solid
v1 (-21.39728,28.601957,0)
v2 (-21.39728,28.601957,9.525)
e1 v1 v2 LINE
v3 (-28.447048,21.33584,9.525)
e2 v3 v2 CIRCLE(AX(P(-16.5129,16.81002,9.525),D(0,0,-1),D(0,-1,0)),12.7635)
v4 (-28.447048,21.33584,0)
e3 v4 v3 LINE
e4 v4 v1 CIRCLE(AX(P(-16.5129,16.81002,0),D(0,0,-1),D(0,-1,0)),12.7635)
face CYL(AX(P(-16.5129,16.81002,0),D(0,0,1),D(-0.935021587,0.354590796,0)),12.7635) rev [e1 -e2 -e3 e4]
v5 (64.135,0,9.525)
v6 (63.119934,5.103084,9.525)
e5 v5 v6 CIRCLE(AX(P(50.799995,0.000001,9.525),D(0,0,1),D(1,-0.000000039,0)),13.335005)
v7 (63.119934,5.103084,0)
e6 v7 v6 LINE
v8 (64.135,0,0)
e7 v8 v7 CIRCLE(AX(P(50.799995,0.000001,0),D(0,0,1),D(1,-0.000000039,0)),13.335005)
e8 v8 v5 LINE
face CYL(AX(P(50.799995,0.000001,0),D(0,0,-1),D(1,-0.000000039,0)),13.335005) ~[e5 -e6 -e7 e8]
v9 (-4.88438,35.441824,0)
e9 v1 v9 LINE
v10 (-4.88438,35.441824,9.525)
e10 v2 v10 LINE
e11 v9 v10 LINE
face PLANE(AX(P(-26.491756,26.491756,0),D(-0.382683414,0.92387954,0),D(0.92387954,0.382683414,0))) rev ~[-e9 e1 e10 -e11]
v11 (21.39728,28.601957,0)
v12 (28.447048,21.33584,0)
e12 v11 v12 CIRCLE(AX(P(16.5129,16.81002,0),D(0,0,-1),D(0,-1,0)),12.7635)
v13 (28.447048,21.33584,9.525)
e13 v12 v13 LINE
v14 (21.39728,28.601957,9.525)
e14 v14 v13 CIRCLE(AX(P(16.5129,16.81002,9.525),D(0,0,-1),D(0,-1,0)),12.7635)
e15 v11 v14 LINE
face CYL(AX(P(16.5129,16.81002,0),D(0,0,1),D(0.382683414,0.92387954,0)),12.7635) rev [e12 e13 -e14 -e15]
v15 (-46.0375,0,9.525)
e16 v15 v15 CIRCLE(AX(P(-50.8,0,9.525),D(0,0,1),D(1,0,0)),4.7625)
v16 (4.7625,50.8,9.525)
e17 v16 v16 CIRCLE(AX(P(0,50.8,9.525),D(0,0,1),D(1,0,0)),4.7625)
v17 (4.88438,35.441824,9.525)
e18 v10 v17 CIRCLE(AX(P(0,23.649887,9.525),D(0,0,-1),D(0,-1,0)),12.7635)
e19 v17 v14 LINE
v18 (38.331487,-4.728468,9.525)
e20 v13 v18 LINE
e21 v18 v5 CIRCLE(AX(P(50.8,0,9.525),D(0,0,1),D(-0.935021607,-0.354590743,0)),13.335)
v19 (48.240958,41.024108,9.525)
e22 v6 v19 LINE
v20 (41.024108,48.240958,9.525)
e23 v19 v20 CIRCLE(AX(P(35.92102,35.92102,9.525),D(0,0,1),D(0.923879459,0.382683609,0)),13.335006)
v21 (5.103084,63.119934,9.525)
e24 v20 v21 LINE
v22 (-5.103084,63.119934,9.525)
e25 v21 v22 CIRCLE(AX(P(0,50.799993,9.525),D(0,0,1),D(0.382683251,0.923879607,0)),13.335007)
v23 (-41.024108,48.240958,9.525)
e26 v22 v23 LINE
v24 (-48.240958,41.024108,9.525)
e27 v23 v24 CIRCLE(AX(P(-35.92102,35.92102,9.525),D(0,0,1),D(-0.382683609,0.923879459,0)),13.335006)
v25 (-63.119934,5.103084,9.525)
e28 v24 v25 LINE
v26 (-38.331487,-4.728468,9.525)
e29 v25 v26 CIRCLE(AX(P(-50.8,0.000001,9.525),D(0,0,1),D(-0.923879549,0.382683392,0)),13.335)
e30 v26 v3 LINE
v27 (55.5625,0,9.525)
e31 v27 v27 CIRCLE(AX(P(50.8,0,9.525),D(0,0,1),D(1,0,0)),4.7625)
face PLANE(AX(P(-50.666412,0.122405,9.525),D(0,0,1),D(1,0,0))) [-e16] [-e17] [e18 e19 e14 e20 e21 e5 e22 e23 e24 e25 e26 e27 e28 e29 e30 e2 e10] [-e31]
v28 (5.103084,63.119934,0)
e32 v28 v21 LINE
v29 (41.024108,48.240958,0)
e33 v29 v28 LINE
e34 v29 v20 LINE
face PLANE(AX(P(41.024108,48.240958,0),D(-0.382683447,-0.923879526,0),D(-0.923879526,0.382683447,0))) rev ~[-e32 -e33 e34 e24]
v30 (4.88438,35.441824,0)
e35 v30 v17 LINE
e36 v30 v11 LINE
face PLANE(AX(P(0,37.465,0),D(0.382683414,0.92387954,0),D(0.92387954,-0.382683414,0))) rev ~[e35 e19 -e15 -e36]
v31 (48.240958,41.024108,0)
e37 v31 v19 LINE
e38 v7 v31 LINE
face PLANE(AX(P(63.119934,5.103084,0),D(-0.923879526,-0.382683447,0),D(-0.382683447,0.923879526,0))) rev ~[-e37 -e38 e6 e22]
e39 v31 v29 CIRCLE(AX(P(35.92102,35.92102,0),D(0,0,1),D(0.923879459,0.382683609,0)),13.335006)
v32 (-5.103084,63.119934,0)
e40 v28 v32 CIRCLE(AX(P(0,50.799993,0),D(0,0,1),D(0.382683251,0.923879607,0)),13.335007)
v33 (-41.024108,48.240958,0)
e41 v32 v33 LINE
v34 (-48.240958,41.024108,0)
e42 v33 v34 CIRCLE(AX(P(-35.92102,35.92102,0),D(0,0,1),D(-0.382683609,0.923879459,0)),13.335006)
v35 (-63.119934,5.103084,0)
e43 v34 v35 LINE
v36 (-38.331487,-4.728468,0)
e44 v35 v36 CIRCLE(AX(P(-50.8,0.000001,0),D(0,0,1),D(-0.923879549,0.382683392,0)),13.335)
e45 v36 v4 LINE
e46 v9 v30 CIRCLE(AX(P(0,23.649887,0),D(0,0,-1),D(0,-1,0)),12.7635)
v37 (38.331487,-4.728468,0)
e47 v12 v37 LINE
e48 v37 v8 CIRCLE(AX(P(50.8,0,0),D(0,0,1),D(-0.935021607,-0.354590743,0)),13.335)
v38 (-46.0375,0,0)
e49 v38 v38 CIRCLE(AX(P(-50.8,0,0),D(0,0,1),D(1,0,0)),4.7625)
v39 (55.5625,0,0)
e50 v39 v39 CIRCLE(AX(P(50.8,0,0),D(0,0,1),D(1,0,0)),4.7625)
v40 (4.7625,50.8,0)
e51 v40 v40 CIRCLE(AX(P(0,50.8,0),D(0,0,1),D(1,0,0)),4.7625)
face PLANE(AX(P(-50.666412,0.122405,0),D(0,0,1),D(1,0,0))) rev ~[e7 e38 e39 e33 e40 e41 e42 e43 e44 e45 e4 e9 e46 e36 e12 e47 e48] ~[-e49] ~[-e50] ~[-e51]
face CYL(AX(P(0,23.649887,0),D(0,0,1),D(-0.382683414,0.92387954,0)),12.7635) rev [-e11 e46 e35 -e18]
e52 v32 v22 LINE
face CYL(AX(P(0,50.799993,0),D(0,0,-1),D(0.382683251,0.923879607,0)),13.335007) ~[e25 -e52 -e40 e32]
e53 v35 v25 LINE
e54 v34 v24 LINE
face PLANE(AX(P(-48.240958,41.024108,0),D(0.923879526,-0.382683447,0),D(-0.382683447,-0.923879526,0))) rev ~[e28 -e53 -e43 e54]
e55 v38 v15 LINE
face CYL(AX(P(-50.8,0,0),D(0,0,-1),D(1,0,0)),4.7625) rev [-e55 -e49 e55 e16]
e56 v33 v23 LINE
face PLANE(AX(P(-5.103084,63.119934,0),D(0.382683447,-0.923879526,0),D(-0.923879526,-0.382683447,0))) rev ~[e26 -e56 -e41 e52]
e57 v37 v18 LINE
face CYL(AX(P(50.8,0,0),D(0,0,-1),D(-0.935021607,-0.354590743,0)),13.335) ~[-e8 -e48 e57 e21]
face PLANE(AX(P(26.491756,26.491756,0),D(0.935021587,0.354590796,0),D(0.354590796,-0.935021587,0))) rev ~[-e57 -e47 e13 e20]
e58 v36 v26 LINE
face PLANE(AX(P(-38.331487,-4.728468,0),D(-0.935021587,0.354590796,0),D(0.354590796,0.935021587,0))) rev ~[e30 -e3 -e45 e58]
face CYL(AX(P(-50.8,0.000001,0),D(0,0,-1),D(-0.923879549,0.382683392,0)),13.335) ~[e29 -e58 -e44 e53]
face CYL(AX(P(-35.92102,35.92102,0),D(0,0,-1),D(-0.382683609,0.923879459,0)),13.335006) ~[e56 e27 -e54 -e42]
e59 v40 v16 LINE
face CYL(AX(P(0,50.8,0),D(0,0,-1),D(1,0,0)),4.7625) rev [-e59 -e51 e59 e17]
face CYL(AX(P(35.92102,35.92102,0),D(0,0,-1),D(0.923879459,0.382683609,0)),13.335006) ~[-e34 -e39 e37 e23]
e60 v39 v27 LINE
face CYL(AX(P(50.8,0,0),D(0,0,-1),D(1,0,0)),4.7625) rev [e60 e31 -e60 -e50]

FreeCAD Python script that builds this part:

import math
import FreeCAD as App
import Part
import Sketcher
Q = App.Units.Quantity


def edges_at(feature, points):
    """Names of the edges that pass closest to the given points."""
    edges = feature.Shape.Edges
    near = lambda p: min(range(len(edges)), key=lambda i: edges[i].distToShape(Part.Vertex(*p))[0])
    return sorted({f"Edge{near(p) + 1}" for p in points})

doc = App.newDocument("Part")
params = doc.addObject("Spreadsheet::Sheet", "Params")
for row, (alias, value) in enumerate([
    ("sketch1_diameter", "0.375 in"),
    ("sketch1_radius", "0.525 in"),
    ("pad1_length", "0.375 in"),
    ("fillet_radius", "0.5025 in"),
], start=1):
    params.set(f"A{row}", alias)
    params.set(f"B{row}", "=" + value)
    params.setAlias(f"B{row}", alias)

body = doc.addObject("PartDesign::Body", "Body")

# Sketch on XY plane
sketch1 = body.newObject("Sketcher::SketchObject", "Sketch")
sketch1.AttachmentSupport = (doc.getObject("XY_Plane"), [""])
sketch1.MapMode = "FlatFace"
sketch1.addGeometry([
    Part.ArcOfCircle(Part.Circle(App.Vector(-50.8, 0, 0), App.Vector(0, 0, 1), 13.3), math.radians(158), math.radians(339)),  # 0
    Part.LineSegment(App.Vector(-38.3, -4.7, 0), App.Vector(-26.5, 26.5, 0)),  # 1
    Part.LineSegment(App.Vector(-26.5, 26.5, 0), App.Vector(0, 37.5, 0)),  # 2
    Part.LineSegment(App.Vector(0, 37.5, 0), App.Vector(26.5, 26.5, 0)),  # 3
    Part.LineSegment(App.Vector(26.5, 26.5, 0), App.Vector(38.3, -4.7, 0)),  # 4
    Part.ArcOfCircle(Part.Circle(App.Vector(50.8, 0, 0), App.Vector(0, 0, 1), 13.3), math.radians(-159), math.radians(0)),  # 5
    Part.ArcOfCircle(Part.Circle(App.Vector(50.8, 0, 0), App.Vector(0, 0, 1), 13.3), math.radians(0), math.radians(22)),  # 6
    Part.LineSegment(App.Vector(63.1, 5.1, 0), App.Vector(48.2, 41, 0)),  # 7
    Part.ArcOfCircle(Part.Circle(App.Vector(35.9, 35.9, 0), App.Vector(0, 0, 1), 13.3), math.radians(23), math.radians(67)),  # 8
    Part.LineSegment(App.Vector(41, 48.2, 0), App.Vector(5.1, 63.1, 0)),  # 9
    Part.ArcOfCircle(Part.Circle(App.Vector(0, 50.8, 0), App.Vector(0, 0, 1), 13.3), math.radians(68), math.radians(112)),  # 10
    Part.LineSegment(App.Vector(-5.1, 63.1, 0), App.Vector(-41, 48.2, 0)),  # 11
    Part.ArcOfCircle(Part.Circle(App.Vector(-35.9, 35.9, 0), App.Vector(0, 0, 1), 13.3), math.radians(113), math.radians(157)),  # 12
    Part.LineSegment(App.Vector(-48.2, 41, 0), App.Vector(-63.1, 5.1, 0)),  # 13
    Part.Circle(App.Vector(-50.8, 0, 0), App.Vector(0, 0, 1), 4.8),  # 14
    Part.Circle(App.Vector(50.8, 0, 0), App.Vector(0, 0, 1), 4.8),  # 15
    Part.Circle(App.Vector(0, 50.8, 0), App.Vector(0, 0, 1), 4.8),  # 16
], False)
sketch1.addConstraint([
    Sketcher.Constraint("Tangent", 0, 2, 1, 1),
    Sketcher.Constraint("Coincident", 1, 2, 2, 1),
    Sketcher.Constraint("Coincident", 2, 2, 3, 1),
    Sketcher.Constraint("Coincident", 3, 2, 4, 1),
    Sketcher.Constraint("Tangent", 4, 2, 5, 1),
    Sketcher.Constraint("Tangent", 5, 2, 6, 1),
    Sketcher.Constraint("Tangent", 6, 2, 7, 1),
    Sketcher.Constraint("Tangent", 7, 2, 8, 1),
    Sketcher.Constraint("Tangent", 8, 2, 9, 1),
    Sketcher.Constraint("Tangent", 9, 2, 10, 1),
    Sketcher.Constraint("Tangent", 10, 2, 11, 1),
    Sketcher.Constraint("Tangent", 11, 2, 12, 1),
    Sketcher.Constraint("Tangent", 12, 2, 13, 1),
    Sketcher.Constraint("Tangent", 13, 2, 0, 1),
    Sketcher.Constraint("Coincident", 14, 3, 0, 3),
    Sketcher.Constraint("Coincident", 15, 3, 5, 3),
    Sketcher.Constraint("Coincident", 16, 3, 10, 3),
    Sketcher.Constraint("Equal", 0, 5),
    Sketcher.Constraint("Equal", 6, 8),
    Sketcher.Constraint("Equal", 8, 10),
    Sketcher.Constraint("Equal", 10, 12),
    Sketcher.Constraint("Equal", 14, 15),
    Sketcher.Constraint("Equal", 15, 16),
    Sketcher.Constraint("Symmetric", 0, 3, 5, 3, -1, 1),
    Sketcher.Constraint("Symmetric", 0, 3, 6, 3, -2),
    Sketcher.Constraint("Symmetric", 8, 3, 12, 3, -2),
    Sketcher.Constraint("Symmetric", 1, 2, 3, 2, -2),
    Sketcher.Constraint("PointOnObject", 10, 3, -2),
    Sketcher.Constraint("PointOnObject", 2, 2, -2),
    Sketcher.Constraint("PointOnObject", 5, 2, -1),
    Sketcher.Constraint("Perpendicular", 2, 7),
    Sketcher.Constraint("Parallel", 3, 9),
    Sketcher.Constraint("Equal", 7, 9),
    Sketcher.Constraint("Diameter", 14, Q("0.375 in")),
    Sketcher.Constraint("DistanceX", 0, 3, -1, 1, Q("2 in")),
    Sketcher.Constraint("Radius", 0, Q("0.525 in")),
    Sketcher.Constraint("Angle", 2, Q("22.499999 deg")),
    Sketcher.Constraint("DistanceY", -1, 1, 2, 2, Q("1.475 in")),
    Sketcher.Constraint("Distance", 2, Q("28.67447 mm")),
])
sketch1.setExpression("Constraints[33]", "Params.sketch1_diameter")
sketch1.setExpression("Constraints[35]", "Params.sketch1_radius")
pad1 = body.newObject("PartDesign::Pad", "Pad")
pad1.Profile = sketch1
pad1.setExpression("Length", "Params.pad1_length")
doc.recompute()

fillet = body.newObject("PartDesign::Fillet", "Fillet")
fillet.Base = (pad1, edges_at(pad1, [(-26.492, 26.492, 4.763), (0, 37.465, 4.763), (26.492, 26.492, 4.763)]))
fillet.setExpression("Radius", "Params.fillet_radius")

doc.recompute()
